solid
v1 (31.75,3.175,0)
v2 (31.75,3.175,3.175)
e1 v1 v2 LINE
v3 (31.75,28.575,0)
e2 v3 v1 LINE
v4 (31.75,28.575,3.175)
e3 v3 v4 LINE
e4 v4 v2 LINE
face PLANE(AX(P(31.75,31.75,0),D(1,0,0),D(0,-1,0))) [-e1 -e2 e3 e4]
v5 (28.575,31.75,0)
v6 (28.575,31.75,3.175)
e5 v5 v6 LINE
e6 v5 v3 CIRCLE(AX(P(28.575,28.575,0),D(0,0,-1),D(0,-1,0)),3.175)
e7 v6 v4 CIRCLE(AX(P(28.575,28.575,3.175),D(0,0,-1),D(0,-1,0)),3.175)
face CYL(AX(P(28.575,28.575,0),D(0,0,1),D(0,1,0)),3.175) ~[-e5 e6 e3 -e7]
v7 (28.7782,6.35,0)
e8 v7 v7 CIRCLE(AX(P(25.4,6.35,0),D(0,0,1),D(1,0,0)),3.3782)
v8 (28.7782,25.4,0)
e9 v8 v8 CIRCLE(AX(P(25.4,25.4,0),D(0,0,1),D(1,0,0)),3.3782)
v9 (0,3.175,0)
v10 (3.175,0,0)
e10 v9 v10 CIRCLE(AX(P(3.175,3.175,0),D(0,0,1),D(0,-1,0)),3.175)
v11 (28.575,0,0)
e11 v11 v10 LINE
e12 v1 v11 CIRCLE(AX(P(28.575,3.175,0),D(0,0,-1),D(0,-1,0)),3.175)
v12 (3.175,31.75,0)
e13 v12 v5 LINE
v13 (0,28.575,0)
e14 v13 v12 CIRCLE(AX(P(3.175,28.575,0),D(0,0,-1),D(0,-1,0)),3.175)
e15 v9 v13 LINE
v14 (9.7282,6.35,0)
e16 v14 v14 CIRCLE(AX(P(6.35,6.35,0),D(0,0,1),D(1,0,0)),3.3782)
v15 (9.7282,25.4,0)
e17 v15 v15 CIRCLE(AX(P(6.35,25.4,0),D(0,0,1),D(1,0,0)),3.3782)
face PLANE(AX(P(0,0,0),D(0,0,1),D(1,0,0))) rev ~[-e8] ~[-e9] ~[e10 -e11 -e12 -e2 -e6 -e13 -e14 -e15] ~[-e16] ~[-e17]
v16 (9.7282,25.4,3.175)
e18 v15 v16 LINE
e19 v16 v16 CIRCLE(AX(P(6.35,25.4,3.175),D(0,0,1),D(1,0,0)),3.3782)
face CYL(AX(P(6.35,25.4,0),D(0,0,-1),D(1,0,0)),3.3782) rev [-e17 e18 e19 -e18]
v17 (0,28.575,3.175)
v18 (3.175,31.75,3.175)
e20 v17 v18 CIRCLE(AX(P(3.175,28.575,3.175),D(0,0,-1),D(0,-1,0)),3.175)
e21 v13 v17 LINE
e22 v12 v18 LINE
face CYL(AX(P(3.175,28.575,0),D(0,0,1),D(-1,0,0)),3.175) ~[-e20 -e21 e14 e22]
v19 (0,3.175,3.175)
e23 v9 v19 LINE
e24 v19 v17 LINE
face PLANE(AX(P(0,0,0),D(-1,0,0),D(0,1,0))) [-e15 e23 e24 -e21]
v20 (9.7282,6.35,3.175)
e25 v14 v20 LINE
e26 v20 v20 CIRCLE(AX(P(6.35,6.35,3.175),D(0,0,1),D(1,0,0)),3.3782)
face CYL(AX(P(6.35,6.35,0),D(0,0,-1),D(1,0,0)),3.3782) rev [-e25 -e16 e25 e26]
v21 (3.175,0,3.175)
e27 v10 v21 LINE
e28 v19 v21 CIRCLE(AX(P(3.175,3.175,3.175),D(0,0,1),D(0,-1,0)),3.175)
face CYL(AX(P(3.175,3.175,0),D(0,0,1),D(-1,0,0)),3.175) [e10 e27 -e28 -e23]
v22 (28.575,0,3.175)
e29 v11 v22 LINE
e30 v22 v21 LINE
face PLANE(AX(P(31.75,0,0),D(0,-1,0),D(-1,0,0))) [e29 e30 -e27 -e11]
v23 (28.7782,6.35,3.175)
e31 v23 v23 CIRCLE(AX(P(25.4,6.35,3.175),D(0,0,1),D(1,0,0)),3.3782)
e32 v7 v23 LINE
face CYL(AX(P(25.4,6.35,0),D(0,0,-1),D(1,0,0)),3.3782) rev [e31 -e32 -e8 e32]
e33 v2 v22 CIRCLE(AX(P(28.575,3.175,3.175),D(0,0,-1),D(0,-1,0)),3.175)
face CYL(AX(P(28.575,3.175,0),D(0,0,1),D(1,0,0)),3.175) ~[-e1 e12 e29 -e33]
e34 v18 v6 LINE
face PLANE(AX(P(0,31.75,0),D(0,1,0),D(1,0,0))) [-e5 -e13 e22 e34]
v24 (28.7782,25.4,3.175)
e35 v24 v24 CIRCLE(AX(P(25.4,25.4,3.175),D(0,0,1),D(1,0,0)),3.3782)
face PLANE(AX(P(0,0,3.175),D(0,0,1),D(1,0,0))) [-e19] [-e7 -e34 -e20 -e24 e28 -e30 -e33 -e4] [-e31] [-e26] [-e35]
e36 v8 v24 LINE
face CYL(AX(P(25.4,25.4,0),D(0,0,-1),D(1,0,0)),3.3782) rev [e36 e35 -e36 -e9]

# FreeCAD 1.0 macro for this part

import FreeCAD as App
import Part
import Sketcher
Q = App.Units.Quantity


def edges_at(feature, points):
    """Names of the edges that pass closest to the given points."""
    edges = feature.Shape.Edges
    near = lambda p: min(range(len(edges)), key=lambda i: edges[i].distToShape(Part.Vertex(*p))[0])
    return sorted({f"Edge{near(p) + 1}" for p in points})

doc = App.newDocument("Part")
params = doc.addObject("Spreadsheet::Sheet", "Params")
for row, (alias, value) in enumerate([
    ("sketch1_diameter", "0.266 in"),
    ("sketch1_width", "1.25 in"),
    ("pad1_length", "0.125 in"),
    ("fillet_radius", "0.125 in"),
], start=1):
    params.set(f"A{row}", alias)
    params.set(f"B{row}", "=" + value)
    params.setAlias(f"B{row}", alias)

body = doc.addObject("PartDesign::Body", "Body")

# Sketch on XY plane
sketch1 = body.newObject("Sketcher::SketchObject", "Sketch")
sketch1.AttachmentSupport = (doc.getObject("XY_Plane"), [""])
sketch1.MapMode = "FlatFace"
sketch1.addGeometry(Part.LineSegment(App.Vector(0, 31.75, 0), App.Vector(0, 0, 0)), False)
sketch1.addGeometry(Part.LineSegment(App.Vector(0, 0, 0), App.Vector(31.75, 0, 0)), False)
sketch1.addGeometry(Part.LineSegment(App.Vector(31.75, 0, 0), App.Vector(31.75, 31.75, 0)), False)
sketch1.addGeometry(Part.LineSegment(App.Vector(31.75, 31.75, 0), App.Vector(0, 31.75, 0)), False)
sketch1.addGeometry(Part.Circle(App.Vector(6.35, 6.35, 0), App.Vector(0, 0, 1), 3.3782), False)
sketch1.addGeometry(Part.Circle(App.Vector(25.4, 6.35, 0), App.Vector(0, 0, 1), 3.3782), False)
sketch1.addGeometry(Part.Circle(App.Vector(6.35, 25.4, 0), App.Vector(0, 0, 1), 3.3782), False)
sketch1.addGeometry(Part.Circle(App.Vector(25.4, 25.4, 0), App.Vector(0, 0, 1), 3.3782), False)
sketch1.addConstraint(Sketcher.Constraint("Coincident", 0, 2, 1, 1))
sketch1.addConstraint(Sketcher.Constraint("Coincident", 1, 2, 2, 1))
sketch1.addConstraint(Sketcher.Constraint("Coincident", 2, 2, 3, 1))
sketch1.addConstraint(Sketcher.Constraint("Coincident", 3, 2, 0, 1))
sketch1.addConstraint(Sketcher.Constraint("Vertical", 0))
sketch1.addConstraint(Sketcher.Constraint("Horizontal", 1))
sketch1.addConstraint(Sketcher.Constraint("Vertical", 2))
sketch1.addConstraint(Sketcher.Constraint("Horizontal", 3))
sketch1.addConstraint(Sketcher.Constraint("Coincident", 0, 2, -1, 1))
sketch1.addConstraint(Sketcher.Constraint("Equal", 4, 5))
sketch1.addConstraint(Sketcher.Constraint("Equal", 5, 6))
sketch1.addConstraint(Sketcher.Constraint("Equal", 6, 7))
sketch1.addConstraint(Sketcher.Constraint("Horizontal", 4, 3, 5, 3))
sketch1.addConstraint(Sketcher.Constraint("Horizontal", 6, 3, 7, 3))
sketch1.addConstraint(Sketcher.Constraint("Vertical", 4, 3, 6, 3))
sketch1.addConstraint(Sketcher.Constraint("Vertical", 5, 3, 7, 3))
sketch1.addConstraint(Sketcher.Constraint("Equal", 3, 0))
sketch1.addConstraint(Sketcher.Constraint("Diameter", 4, Q("0.266 in")))
sketch1.addConstraint(Sketcher.Constraint("DistanceX", 1, 1, 1, 2, Q("1.25 in")))
sketch1.addConstraint(Sketcher.Constraint("DistanceX", 4, 3, 5, 3, Q("0.75 in")))
sketch1.addConstraint(Sketcher.Constraint("DistanceY", 4, 3, 6, 3, Q("0.75 in")))
sketch1.addConstraint(Sketcher.Constraint("DistanceX", -1, 1, 5, 3, Q("1 in")))
sketch1.addConstraint(Sketcher.Constraint("DistanceY", -1, 1, 6, 3, Q("1 in")))
sketch1.setExpression("Constraints[17]", "Params.sketch1_diameter")
sketch1.setExpression("Constraints[18]", "Params.sketch1_width")
pad1 = body.newObject("PartDesign::Pad", "Pad")
pad1.Profile = sketch1
pad1.setExpression("Length", "Params.pad1_length")
doc.recompute()

fillet = body.newObject("PartDesign::Fillet", "Fillet")
fillet.Base = (pad1, edges_at(pad1, [
    (31.75, 31.75, 1.587),
    (31.75, 0, 1.587),
    (0, 31.75, 1.587),
    (0, 0, 1.587),
]))
fillet.setExpression("Radius", "Params.fillet_radius")

doc.recompute()
